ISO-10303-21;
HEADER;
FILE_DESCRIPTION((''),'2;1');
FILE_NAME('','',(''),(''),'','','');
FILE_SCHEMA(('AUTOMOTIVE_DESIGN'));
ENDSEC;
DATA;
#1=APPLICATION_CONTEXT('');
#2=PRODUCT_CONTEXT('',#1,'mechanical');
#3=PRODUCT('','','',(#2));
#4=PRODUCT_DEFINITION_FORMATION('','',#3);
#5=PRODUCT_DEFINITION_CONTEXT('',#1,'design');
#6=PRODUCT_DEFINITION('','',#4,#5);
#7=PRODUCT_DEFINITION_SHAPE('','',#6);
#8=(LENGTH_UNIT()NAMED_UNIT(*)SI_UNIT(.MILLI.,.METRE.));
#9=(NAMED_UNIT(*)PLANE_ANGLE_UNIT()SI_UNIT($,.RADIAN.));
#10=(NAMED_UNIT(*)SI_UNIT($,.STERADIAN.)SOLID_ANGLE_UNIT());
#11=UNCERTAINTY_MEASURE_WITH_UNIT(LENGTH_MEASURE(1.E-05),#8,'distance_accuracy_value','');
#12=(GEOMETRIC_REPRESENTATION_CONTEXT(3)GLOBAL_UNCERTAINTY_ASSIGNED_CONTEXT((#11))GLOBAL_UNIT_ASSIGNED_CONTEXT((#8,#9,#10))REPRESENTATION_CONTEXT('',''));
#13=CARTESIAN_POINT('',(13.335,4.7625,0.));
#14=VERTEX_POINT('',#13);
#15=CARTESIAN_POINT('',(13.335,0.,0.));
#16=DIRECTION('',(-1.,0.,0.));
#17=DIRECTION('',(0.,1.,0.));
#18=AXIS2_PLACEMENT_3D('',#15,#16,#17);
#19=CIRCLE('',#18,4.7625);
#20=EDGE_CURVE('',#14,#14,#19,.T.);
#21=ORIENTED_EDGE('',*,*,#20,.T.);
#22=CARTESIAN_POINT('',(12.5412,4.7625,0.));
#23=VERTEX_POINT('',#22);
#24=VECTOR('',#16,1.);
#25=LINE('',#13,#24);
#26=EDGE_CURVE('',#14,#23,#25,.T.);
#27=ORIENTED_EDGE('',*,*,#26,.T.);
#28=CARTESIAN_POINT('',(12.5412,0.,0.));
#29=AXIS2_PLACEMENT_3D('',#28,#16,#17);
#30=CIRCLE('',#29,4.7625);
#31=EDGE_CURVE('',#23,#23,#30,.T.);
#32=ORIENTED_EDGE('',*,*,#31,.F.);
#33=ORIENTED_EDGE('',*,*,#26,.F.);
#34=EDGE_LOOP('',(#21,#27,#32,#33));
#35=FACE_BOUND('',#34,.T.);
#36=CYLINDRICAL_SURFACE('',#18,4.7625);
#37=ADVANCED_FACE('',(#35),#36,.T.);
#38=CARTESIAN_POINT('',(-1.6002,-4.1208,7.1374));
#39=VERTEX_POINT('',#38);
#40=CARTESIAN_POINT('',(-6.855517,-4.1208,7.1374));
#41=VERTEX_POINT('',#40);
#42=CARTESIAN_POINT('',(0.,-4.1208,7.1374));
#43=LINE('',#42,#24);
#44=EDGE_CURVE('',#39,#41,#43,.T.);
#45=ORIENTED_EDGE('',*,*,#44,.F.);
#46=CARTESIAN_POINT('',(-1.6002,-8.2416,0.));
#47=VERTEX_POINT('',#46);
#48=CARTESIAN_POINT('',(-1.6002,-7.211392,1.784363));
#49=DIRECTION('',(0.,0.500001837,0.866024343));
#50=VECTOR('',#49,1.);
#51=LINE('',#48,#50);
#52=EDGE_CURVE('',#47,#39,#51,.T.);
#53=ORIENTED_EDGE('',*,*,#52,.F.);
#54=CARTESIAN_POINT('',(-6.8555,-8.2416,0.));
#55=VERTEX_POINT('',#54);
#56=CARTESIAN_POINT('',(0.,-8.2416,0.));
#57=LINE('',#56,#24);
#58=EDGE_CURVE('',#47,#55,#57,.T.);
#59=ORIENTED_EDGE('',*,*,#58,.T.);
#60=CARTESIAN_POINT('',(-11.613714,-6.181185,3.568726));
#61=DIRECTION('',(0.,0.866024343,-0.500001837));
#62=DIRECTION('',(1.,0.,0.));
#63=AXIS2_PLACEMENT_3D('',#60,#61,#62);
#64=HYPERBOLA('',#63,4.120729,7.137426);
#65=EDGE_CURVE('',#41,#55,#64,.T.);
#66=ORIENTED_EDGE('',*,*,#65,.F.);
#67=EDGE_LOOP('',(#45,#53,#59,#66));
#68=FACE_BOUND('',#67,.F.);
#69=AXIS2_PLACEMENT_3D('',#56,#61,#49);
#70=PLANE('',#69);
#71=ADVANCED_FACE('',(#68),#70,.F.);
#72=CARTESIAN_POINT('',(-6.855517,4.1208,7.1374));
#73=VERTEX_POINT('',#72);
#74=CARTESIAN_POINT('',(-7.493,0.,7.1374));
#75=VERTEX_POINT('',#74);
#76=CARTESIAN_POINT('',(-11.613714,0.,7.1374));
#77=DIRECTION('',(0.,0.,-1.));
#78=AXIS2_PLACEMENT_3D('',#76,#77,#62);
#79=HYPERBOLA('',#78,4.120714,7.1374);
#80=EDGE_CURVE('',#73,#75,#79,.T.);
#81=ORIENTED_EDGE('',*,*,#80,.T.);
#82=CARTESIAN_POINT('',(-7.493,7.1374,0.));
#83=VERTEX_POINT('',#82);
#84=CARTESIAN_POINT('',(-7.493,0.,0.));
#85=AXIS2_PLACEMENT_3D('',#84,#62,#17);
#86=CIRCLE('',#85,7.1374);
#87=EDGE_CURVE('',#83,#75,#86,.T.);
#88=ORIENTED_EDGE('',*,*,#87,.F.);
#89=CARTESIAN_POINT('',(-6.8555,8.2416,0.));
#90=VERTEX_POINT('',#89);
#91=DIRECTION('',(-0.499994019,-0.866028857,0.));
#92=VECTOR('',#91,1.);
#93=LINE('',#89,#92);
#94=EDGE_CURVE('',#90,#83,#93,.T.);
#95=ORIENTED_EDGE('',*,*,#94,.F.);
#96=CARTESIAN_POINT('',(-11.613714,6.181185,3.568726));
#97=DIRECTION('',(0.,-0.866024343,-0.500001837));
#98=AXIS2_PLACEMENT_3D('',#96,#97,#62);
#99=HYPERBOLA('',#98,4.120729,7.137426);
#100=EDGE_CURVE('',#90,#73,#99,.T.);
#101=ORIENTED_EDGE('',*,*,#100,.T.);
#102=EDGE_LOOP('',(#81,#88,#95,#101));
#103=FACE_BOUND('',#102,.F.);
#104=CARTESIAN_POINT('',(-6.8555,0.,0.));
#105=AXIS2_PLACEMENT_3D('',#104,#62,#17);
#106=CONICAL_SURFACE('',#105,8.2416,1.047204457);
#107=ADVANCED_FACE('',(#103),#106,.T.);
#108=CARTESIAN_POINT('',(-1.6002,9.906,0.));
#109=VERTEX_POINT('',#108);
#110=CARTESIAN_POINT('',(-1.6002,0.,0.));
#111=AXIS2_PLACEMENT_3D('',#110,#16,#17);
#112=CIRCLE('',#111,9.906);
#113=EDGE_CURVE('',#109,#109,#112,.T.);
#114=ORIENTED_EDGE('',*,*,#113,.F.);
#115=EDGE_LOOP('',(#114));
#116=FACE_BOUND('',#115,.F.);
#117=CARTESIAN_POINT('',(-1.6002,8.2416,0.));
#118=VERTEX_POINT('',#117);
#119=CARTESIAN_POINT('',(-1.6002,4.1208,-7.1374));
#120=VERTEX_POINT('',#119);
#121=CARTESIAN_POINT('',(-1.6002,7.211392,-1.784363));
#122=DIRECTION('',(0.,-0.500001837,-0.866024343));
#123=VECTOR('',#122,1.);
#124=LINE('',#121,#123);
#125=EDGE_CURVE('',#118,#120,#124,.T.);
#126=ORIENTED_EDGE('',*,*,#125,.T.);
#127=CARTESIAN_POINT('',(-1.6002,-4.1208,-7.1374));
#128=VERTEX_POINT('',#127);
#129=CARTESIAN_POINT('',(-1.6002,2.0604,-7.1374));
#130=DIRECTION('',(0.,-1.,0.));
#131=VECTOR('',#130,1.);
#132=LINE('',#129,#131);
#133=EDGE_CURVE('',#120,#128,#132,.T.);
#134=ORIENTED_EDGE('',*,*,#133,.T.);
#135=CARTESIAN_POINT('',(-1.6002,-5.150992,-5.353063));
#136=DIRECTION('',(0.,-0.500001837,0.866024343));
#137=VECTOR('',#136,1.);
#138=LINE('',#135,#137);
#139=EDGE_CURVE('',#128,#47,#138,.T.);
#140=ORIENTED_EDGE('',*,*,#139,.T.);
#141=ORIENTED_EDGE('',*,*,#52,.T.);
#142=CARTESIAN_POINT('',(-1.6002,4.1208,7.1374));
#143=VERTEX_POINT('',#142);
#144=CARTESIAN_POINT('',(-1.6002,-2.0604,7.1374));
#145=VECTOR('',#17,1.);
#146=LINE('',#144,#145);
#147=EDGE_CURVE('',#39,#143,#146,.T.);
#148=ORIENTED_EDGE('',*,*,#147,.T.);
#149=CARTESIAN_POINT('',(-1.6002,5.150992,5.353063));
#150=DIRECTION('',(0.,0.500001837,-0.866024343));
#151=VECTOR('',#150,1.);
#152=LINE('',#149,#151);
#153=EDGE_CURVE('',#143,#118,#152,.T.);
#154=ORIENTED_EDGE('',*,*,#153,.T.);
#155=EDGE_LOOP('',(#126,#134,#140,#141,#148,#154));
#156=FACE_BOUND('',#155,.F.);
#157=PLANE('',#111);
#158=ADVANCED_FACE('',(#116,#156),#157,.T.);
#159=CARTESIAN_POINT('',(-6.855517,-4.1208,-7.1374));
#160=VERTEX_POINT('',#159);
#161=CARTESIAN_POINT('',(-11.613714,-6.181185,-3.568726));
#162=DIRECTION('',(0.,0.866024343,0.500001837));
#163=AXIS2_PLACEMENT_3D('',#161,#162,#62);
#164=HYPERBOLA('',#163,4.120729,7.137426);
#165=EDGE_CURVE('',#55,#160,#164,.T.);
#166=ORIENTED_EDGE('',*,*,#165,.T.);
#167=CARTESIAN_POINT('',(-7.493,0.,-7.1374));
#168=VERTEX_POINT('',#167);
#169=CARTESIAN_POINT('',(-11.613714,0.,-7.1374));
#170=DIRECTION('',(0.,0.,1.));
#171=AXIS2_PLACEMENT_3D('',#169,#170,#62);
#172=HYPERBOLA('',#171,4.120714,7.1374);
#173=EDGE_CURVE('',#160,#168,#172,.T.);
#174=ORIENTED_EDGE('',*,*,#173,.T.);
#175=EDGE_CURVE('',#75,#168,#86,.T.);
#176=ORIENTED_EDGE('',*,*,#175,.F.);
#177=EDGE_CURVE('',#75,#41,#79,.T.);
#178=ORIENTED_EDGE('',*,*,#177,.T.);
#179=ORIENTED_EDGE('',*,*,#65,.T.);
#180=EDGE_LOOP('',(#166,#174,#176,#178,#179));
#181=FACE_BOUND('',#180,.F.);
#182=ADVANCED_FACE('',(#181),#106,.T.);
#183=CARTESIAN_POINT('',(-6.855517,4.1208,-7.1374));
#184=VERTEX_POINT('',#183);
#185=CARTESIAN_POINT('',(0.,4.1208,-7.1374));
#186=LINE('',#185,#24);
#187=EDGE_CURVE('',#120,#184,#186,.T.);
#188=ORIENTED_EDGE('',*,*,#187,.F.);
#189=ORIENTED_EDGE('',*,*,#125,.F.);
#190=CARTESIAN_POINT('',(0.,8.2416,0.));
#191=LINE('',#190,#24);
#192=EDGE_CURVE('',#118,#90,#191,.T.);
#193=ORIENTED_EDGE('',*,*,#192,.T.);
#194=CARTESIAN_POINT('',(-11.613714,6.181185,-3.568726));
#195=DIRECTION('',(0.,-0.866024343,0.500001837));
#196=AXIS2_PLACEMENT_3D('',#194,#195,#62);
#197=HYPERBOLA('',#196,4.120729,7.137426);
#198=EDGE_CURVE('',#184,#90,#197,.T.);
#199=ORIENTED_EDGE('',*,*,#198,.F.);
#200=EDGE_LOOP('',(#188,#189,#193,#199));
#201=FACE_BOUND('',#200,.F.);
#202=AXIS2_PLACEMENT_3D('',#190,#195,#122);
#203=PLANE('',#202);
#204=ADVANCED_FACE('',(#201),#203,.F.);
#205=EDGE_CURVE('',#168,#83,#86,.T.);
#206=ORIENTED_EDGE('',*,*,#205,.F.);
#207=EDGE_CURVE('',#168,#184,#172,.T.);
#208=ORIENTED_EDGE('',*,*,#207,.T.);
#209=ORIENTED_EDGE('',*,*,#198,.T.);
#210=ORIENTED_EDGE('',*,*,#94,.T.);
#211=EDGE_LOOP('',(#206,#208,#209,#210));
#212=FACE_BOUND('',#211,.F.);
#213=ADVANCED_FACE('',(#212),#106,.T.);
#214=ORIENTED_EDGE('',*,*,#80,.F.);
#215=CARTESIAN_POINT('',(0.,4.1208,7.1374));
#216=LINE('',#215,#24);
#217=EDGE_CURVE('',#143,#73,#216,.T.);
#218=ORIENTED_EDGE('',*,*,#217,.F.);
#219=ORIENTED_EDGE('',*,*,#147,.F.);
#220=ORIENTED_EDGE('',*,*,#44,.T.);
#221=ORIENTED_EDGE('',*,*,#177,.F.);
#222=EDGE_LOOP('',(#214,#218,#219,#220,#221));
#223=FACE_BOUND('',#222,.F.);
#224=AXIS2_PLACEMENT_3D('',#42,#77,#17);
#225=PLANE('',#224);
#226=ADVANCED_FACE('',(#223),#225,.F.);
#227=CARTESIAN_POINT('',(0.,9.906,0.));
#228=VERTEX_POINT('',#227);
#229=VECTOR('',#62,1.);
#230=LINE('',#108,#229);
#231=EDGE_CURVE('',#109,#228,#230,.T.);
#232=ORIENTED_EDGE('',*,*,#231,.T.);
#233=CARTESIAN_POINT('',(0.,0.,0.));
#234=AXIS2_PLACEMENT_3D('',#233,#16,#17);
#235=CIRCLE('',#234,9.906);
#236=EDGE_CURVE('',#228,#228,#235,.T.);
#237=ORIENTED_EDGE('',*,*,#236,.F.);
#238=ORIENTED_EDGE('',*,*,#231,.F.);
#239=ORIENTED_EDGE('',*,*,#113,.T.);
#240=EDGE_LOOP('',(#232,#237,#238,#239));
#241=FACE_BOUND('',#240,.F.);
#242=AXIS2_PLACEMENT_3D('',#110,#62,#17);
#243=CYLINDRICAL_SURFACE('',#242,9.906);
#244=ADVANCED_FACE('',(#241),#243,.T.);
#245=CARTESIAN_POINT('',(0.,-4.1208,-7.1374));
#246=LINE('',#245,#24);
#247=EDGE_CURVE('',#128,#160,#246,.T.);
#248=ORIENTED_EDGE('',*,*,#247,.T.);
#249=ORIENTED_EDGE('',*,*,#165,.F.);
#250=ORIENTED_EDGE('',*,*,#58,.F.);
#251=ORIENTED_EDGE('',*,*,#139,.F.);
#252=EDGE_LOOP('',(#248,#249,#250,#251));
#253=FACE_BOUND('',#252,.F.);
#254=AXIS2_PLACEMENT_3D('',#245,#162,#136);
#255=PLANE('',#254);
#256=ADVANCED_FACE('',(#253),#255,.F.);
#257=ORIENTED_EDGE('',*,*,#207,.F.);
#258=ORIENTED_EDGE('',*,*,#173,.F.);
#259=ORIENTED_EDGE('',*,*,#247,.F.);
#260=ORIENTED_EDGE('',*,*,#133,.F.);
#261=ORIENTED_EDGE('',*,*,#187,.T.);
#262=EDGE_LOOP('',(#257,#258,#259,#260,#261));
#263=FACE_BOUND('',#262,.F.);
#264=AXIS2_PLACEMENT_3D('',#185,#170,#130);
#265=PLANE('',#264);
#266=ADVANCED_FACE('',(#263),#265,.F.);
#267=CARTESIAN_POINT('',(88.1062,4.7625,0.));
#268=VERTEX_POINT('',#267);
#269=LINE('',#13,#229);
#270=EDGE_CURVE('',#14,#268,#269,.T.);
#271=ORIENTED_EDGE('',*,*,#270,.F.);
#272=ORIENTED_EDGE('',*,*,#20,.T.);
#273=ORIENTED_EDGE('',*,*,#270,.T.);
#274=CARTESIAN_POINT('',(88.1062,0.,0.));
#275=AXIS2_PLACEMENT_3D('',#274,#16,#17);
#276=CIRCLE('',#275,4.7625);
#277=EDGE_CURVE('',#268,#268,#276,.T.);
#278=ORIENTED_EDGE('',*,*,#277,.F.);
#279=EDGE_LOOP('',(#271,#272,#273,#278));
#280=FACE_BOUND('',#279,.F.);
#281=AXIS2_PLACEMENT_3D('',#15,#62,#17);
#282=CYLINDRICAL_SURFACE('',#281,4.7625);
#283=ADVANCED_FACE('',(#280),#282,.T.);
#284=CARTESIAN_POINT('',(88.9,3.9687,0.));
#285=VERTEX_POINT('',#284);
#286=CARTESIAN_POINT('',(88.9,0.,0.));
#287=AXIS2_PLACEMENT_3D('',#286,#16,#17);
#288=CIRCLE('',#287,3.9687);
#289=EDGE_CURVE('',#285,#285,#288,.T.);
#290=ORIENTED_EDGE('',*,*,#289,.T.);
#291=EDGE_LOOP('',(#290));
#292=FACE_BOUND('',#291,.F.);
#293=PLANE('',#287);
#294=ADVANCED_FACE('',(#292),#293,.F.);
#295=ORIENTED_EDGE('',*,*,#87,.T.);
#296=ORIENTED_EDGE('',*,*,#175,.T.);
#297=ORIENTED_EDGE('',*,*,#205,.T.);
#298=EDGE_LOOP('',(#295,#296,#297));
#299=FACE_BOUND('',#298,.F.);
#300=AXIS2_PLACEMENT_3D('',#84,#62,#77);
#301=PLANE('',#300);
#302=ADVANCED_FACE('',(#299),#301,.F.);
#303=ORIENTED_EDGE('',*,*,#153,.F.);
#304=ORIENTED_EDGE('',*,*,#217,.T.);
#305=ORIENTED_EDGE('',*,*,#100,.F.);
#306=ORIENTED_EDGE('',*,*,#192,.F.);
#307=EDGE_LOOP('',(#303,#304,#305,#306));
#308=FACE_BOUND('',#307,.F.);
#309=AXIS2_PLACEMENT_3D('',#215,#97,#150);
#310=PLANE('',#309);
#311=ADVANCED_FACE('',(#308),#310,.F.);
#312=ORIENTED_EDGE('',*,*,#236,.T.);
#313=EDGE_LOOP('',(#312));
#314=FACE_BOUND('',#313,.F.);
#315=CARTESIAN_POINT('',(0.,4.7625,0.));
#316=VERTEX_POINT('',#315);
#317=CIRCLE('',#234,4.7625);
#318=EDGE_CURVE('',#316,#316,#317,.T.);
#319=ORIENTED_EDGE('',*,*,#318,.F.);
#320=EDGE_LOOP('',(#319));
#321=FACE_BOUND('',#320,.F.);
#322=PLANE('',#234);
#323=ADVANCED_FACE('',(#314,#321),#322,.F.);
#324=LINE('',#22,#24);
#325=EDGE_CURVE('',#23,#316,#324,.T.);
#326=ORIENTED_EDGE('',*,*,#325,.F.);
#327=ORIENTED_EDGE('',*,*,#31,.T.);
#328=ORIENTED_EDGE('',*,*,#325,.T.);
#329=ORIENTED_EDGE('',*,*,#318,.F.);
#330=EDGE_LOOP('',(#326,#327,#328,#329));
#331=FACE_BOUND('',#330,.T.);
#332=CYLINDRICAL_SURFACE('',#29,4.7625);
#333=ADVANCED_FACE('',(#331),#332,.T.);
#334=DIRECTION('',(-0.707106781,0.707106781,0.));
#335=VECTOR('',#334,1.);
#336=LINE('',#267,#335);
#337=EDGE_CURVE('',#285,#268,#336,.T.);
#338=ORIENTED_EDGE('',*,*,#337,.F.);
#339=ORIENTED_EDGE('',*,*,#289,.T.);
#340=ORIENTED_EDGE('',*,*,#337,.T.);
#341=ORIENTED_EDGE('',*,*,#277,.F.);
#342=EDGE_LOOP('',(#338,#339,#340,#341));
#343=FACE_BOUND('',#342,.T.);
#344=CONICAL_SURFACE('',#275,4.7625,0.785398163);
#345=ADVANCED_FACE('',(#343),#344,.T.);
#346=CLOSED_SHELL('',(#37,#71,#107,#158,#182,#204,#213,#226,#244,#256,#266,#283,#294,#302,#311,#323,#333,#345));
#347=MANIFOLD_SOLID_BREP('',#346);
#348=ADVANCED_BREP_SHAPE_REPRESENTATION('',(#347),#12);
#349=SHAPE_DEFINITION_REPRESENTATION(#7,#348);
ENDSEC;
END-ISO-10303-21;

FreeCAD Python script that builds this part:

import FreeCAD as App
import Part
import Sketcher

V = App.Vector
Q = App.Units.Quantity


def edges_at(feature, points):
    """Names of the edges that pass closest to the given points."""
    edges = feature.Shape.Edges
    near = lambda p: min(range(len(edges)), key=lambda i: edges[i].distToShape(Part.Vertex(*p))[0])
    return sorted({f"Edge{near(p) + 1}" for p in points})


def add_polygon(sketch, points):
    """Adds a closed chain of lines whose ends are joined by coincident constraints."""
    first, n = sketch.GeometryCount, len(points)
    for a, b in zip(points, points[1:] + points[:1]):
        sketch.addGeometry(Part.LineSegment(App.Vector(*a, 0), App.Vector(*b, 0)), False)
    for i in range(n):
        sketch.addConstraint(Sketcher.Constraint("Coincident", first + i, 2, first + (i + 1) % n, 1))

doc = App.newDocument("Part")
params = doc.addObject("Spreadsheet::Sheet", "Params")
for row, (alias, value) in enumerate([
    ("sketch1_width", "3.5 in"),
    ("sketch1_width2", "0.063 in"),
    ("sketch1_height", "0.39 in"),
    ("sketch1_height2", "0.1875 in"),
    ("revolution_angle", "360 deg"),
    ("pad1_length", "0.295 in"),
    ("groove_angle", "360 deg"),
    ("chamfer_size", "0.031252 in"),
    ("chamfer_size2", "0.031252 in"),
], start=1):
    params.set(f"A{row}", alias)
    params.set(f"B{row}", "=" + value)
    params.setAlias(f"B{row}", alias)

body = doc.addObject("PartDesign::Body", "Body")

sketch1 = doc.addObject("Sketcher::SketchObject", "Sketch")
body.addObject(sketch1)
sketch1.AttachmentSupport = (doc.XY_Plane, [""])
sketch1.MapMode = "FlatFace"
add_polygon(sketch1, [(0, 4.8), (0, 9.9), (-1.6, 9.9), (-1.6, 0), (88.9, 0), (88.9, 4.8)])
sketch1.addConstraint(Sketcher.Constraint("Vertical", 0))
sketch1.addConstraint(Sketcher.Constraint("Horizontal", 1))
sketch1.addConstraint(Sketcher.Constraint("Vertical", 2))
sketch1.addConstraint(Sketcher.Constraint("Horizontal", 3))
sketch1.addConstraint(Sketcher.Constraint("Vertical", 4))
sketch1.addConstraint(Sketcher.Constraint("Horizontal", 5))
sketch1.addConstraint(Sketcher.Constraint("PointOnObject", 0, 2, -2))
sketch1.addConstraint(Sketcher.Constraint("PointOnObject", 2, 2, -1))
sketch1.addConstraint(Sketcher.Constraint("DistanceX", 5, 2, 5, 1, Q("3.5 in")))
sketch1.addConstraint(Sketcher.Constraint("DistanceX", 1, 2, 1, 1, Q("0.063 in")))
sketch1.addConstraint(Sketcher.Constraint("DistanceY", 2, 2, 2, 1, Q("0.39 in")))
sketch1.addConstraint(Sketcher.Constraint("DistanceY", 4, 1, 4, 2, Q("0.1875 in")))
sketch1.setExpression("Constraints[14]", "Params.sketch1_width")
sketch1.setExpression("Constraints[15]", "Params.sketch1_width2")
sketch1.setExpression("Constraints[16]", "Params.sketch1_height")
sketch1.setExpression("Constraints[17]", "Params.sketch1_height2")
revolution = doc.addObject("PartDesign::Revolution", "Revolution")
body.addObject(revolution)
revolution.Profile = sketch1
revolution.ReferenceAxis = (sketch1, ["H_Axis"])
revolution.setExpression("Angle", "Params.revolution_angle")

sketch2 = doc.addObject("Sketcher::SketchObject", "Sketch001")
body.addObject(sketch2)
sketch2.AttachmentSupport = (doc.YZ_Plane, [""])
sketch2.MapMode = "FlatFace"
add_polygon(sketch2, [(4, -7), (8, 0), (4, 7), (-4, 7), (-8, 0), (-4, -7)])
sketch2.addConstraint(Sketcher.Constraint("Horizontal", 2))
sketch2.addConstraint(Sketcher.Constraint("Horizontal", 5))
sketch2.addConstraint(Sketcher.Constraint("Symmetric", 0, 2, 3, 2, -1, 1))
sketch2.addConstraint(Sketcher.Constraint("Symmetric", 1, 2, 4, 2, -1, 1))
sketch2.addConstraint(Sketcher.Constraint("PointOnObject", 0, 2, -1))
sketch2.addConstraint(Sketcher.Constraint("Parallel", 0, 3))
sketch2.addConstraint(Sketcher.Constraint("Vertical", 2, 2, 4, 2))
sketch2.addConstraint(Sketcher.Constraint("Angle", 0, Q("59.9999 deg")))
sketch2.addConstraint(Sketcher.Constraint("DistanceY", 4, 2, 2, 2, Q("0.562 in")))
sketch2.addConstraint(Sketcher.Constraint("DistanceX", 2, 2, 2, 1, Q("8.2416 mm")))
pad1 = doc.addObject("PartDesign::Pad", "Pad")
body.addObject(pad1)
pad1.Profile = sketch2
pad1.setExpression("Length", "Params.pad1_length")
pad1.Reversed = True

sketch3 = doc.addObject("Sketcher::SketchObject", "Sketch002")
body.addObject(sketch3)
sketch3.AttachmentSupport = (doc.XY_Plane, [""])
sketch3.MapMode = "FlatFace"
add_polygon(sketch3, [(-7.5, 8.2), (-7.5, 7.1), (-6.9, 8.2)])
sketch3.addConstraint(Sketcher.Constraint("Vertical", 0))
sketch3.addConstraint(Sketcher.Constraint("Horizontal", 2))
sketch3.addConstraint(Sketcher.Constraint("Angle", 1, Q("60.0004 deg")))
sketch3.addConstraint(Sketcher.Constraint("DistanceX", 2, 2, 2, 1, Q("0.0251 in")))
sketch3.addConstraint(Sketcher.Constraint("DistanceX", 0, 2, -1, 1, Q("0.295 in")))
sketch3.addConstraint(Sketcher.Constraint("DistanceY", -1, 1, 0, 2, Q("0.281 in")))
groove = doc.addObject("PartDesign::Groove", "Groove")
body.addObject(groove)
groove.Profile = sketch3
groove.ReferenceAxis = (sketch3, ["H_Axis"])
groove.setExpression("Angle", "Params.groove_angle")
doc.recompute()

chamfer = doc.addObject("PartDesign::Chamfer", "Chamfer")
body.addObject(chamfer)
chamfer.Base = (groove, edges_at(groove, [(88.9, -4.763, 0)]))
chamfer.ChamferType = "Two distances"
chamfer.setExpression("Size", "Params.chamfer_size")
chamfer.setExpression("Size2", "Params.chamfer_size2")

doc.recompute()
